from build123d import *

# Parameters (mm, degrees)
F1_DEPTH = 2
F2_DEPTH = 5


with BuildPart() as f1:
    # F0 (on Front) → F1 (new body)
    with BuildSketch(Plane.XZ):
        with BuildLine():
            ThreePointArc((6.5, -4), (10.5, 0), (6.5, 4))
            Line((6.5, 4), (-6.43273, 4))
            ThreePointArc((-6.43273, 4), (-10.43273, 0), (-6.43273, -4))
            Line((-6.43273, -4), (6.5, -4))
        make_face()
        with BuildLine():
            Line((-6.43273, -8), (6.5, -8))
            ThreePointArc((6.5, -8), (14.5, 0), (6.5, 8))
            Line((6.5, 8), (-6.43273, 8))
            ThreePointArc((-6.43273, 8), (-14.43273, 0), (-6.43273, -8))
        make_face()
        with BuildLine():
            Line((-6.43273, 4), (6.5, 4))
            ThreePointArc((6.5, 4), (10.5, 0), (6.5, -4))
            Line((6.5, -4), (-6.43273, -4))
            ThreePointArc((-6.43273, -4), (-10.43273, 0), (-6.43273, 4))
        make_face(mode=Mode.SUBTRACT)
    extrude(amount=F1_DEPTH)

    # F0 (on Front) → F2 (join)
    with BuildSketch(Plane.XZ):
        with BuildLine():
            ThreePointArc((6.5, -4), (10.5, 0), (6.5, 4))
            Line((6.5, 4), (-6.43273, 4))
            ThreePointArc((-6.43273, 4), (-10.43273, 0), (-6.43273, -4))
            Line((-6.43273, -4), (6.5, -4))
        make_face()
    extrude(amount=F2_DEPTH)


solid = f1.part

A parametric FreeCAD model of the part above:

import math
import FreeCAD as App
import Part
import Sketcher

V = App.Vector
Q = App.Units.Quantity

doc = App.newDocument("Part")
params = doc.addObject("Spreadsheet::Sheet", "Params")
for row, (alias, value) in enumerate([
    ("sketch1_radius", "8 mm"),
    ("sketch1_radius2", "4 mm"),
    ("pad1_length", "2 mm"),
    ("sketch2_radius", "4 mm"),
    ("pad2_length", "5 mm"),
], start=1):
    params.set(f"A{row}", alias)
    params.set(f"B{row}", "=" + value)
    params.setAlias(f"B{row}", alias)

body = doc.addObject("PartDesign::Body", "Body")

# Sketch on XZ plane
sketch1 = doc.addObject("Sketcher::SketchObject", "Sketch")
body.addObject(sketch1)
sketch1.AttachmentSupport = (doc.XZ_Plane, [""])
sketch1.MapMode = "FlatFace"
sketch1.addGeometry([
    Part.LineSegment(V(-6.4, -8, 0), V(6.5, -8, 0)),  # 0
    Part.ArcOfCircle(Part.Circle(V(6.5, 0, 0), V(0, 0, 1), 8), math.radians(-90), math.radians(90)),  # 1
    Part.LineSegment(V(6.5, 8, 0), V(-6.4, 8, 0)),  # 2
    Part.ArcOfCircle(Part.Circle(V(-6.4, 0, 0), V(0, 0, 1), 8), math.radians(90), math.radians(270)),  # 3
    Part.ArcOfCircle(Part.Circle(V(-6.4, 0, 0), V(0, 0, 1), 4), math.radians(90), math.radians(270)),  # 4
    Part.LineSegment(V(-6.4, 4, 0), V(6.5, 4, 0)),  # 5
    Part.ArcOfCircle(Part.Circle(V(6.5, 0, 0), V(0, 0, 1), 4), math.radians(-90), math.radians(90)),  # 6
    Part.LineSegment(V(6.5, -4, 0), V(-6.4, -4, 0)),  # 7
], False)
sketch1.addConstraint([
    Sketcher.Constraint("Tangent", 0, 2, 1, 1),
    Sketcher.Constraint("Tangent", 1, 2, 2, 1),
    Sketcher.Constraint("Tangent", 2, 2, 3, 1),
    Sketcher.Constraint("Tangent", 3, 2, 0, 1),
    Sketcher.Constraint("Tangent", 4, 1, 5, 1),
    Sketcher.Constraint("Tangent", 5, 2, 6, 2),
    Sketcher.Constraint("Tangent", 6, 1, 7, 1),
    Sketcher.Constraint("Tangent", 7, 2, 4, 2),
    Sketcher.Constraint("Horizontal", 0),
    Sketcher.Constraint("Horizontal", 2),
    Sketcher.Constraint("Horizontal", 5),
    Sketcher.Constraint("Horizontal", 7),
    Sketcher.Constraint("Coincident", 4, 3, 3, 3),
    Sketcher.Constraint("PointOnObject", 1, 3, -1),
    Sketcher.Constraint("Vertical", 6, 3, 0, 2),
    Sketcher.Constraint("Radius", 1, Q("8 mm")),
    Sketcher.Constraint("Radius", 4, Q("4 mm")),
    Sketcher.Constraint("DistanceX", -1, 1, 1, 3, Q("6.5 mm")),
    Sketcher.Constraint("DistanceX", 0, 1, 0, 2, Q("12.93273 mm")),
])
sketch1.setExpression("Constraints[15]", "Params.sketch1_radius")
sketch1.setExpression("Constraints[16]", "Params.sketch1_radius2")
pad1 = doc.addObject("PartDesign::Pad", "Pad")
body.addObject(pad1)
pad1.Profile = sketch1
pad1.setExpression("Length", "Params.pad1_length")

# Sketch on XZ plane
sketch2 = doc.addObject("Sketcher::SketchObject", "Sketch001")
body.addObject(sketch2)
sketch2.AttachmentSupport = (doc.XZ_Plane, [""])
sketch2.MapMode = "FlatFace"
sketch2.addGeometry([
    Part.ArcOfCircle(Part.Circle(V(6.5, 0, 0), V(0, 0, 1), 4), math.radians(-90), math.radians(90)),
    Part.LineSegment(V(6.5, 4, 0), V(-6.4, 4, 0)),
    Part.ArcOfCircle(Part.Circle(V(-6.4, 0, 0), V(0, 0, 1), 4), math.radians(90), math.radians(270)),
    Part.LineSegment(V(-6.4, -4, 0), V(6.5, -4, 0)),
], False)
sketch2.addConstraint([
    Sketcher.Constraint("Tangent", 0, 2, 1, 1),
    Sketcher.Constraint("Tangent", 1, 2, 2, 1),
    Sketcher.Constraint("Tangent", 2, 2, 3, 1),
    Sketcher.Constraint("Tangent", 3, 2, 0, 1),
    Sketcher.Constraint("Horizontal", 1),
    Sketcher.Constraint("Horizontal", 3),
    Sketcher.Constraint("PointOnObject", 0, 3, -1),
    Sketcher.Constraint("Radius", 0, Q("4 mm")),
    Sketcher.Constraint("DistanceX", -1, 1, 0, 3, Q("6.5 mm")),
    Sketcher.Constraint("DistanceX", 1, 2, 1, 1, Q("12.93273 mm")),
])
sketch2.setExpression("Constraints[7]", "Params.sketch2_radius")
pad2 = doc.addObject("PartDesign::Pad", "Pad001")
body.addObject(pad2)
pad2.Profile = sketch2
pad2.setExpression("Length", "Params.pad2_length")

doc.recompute()
